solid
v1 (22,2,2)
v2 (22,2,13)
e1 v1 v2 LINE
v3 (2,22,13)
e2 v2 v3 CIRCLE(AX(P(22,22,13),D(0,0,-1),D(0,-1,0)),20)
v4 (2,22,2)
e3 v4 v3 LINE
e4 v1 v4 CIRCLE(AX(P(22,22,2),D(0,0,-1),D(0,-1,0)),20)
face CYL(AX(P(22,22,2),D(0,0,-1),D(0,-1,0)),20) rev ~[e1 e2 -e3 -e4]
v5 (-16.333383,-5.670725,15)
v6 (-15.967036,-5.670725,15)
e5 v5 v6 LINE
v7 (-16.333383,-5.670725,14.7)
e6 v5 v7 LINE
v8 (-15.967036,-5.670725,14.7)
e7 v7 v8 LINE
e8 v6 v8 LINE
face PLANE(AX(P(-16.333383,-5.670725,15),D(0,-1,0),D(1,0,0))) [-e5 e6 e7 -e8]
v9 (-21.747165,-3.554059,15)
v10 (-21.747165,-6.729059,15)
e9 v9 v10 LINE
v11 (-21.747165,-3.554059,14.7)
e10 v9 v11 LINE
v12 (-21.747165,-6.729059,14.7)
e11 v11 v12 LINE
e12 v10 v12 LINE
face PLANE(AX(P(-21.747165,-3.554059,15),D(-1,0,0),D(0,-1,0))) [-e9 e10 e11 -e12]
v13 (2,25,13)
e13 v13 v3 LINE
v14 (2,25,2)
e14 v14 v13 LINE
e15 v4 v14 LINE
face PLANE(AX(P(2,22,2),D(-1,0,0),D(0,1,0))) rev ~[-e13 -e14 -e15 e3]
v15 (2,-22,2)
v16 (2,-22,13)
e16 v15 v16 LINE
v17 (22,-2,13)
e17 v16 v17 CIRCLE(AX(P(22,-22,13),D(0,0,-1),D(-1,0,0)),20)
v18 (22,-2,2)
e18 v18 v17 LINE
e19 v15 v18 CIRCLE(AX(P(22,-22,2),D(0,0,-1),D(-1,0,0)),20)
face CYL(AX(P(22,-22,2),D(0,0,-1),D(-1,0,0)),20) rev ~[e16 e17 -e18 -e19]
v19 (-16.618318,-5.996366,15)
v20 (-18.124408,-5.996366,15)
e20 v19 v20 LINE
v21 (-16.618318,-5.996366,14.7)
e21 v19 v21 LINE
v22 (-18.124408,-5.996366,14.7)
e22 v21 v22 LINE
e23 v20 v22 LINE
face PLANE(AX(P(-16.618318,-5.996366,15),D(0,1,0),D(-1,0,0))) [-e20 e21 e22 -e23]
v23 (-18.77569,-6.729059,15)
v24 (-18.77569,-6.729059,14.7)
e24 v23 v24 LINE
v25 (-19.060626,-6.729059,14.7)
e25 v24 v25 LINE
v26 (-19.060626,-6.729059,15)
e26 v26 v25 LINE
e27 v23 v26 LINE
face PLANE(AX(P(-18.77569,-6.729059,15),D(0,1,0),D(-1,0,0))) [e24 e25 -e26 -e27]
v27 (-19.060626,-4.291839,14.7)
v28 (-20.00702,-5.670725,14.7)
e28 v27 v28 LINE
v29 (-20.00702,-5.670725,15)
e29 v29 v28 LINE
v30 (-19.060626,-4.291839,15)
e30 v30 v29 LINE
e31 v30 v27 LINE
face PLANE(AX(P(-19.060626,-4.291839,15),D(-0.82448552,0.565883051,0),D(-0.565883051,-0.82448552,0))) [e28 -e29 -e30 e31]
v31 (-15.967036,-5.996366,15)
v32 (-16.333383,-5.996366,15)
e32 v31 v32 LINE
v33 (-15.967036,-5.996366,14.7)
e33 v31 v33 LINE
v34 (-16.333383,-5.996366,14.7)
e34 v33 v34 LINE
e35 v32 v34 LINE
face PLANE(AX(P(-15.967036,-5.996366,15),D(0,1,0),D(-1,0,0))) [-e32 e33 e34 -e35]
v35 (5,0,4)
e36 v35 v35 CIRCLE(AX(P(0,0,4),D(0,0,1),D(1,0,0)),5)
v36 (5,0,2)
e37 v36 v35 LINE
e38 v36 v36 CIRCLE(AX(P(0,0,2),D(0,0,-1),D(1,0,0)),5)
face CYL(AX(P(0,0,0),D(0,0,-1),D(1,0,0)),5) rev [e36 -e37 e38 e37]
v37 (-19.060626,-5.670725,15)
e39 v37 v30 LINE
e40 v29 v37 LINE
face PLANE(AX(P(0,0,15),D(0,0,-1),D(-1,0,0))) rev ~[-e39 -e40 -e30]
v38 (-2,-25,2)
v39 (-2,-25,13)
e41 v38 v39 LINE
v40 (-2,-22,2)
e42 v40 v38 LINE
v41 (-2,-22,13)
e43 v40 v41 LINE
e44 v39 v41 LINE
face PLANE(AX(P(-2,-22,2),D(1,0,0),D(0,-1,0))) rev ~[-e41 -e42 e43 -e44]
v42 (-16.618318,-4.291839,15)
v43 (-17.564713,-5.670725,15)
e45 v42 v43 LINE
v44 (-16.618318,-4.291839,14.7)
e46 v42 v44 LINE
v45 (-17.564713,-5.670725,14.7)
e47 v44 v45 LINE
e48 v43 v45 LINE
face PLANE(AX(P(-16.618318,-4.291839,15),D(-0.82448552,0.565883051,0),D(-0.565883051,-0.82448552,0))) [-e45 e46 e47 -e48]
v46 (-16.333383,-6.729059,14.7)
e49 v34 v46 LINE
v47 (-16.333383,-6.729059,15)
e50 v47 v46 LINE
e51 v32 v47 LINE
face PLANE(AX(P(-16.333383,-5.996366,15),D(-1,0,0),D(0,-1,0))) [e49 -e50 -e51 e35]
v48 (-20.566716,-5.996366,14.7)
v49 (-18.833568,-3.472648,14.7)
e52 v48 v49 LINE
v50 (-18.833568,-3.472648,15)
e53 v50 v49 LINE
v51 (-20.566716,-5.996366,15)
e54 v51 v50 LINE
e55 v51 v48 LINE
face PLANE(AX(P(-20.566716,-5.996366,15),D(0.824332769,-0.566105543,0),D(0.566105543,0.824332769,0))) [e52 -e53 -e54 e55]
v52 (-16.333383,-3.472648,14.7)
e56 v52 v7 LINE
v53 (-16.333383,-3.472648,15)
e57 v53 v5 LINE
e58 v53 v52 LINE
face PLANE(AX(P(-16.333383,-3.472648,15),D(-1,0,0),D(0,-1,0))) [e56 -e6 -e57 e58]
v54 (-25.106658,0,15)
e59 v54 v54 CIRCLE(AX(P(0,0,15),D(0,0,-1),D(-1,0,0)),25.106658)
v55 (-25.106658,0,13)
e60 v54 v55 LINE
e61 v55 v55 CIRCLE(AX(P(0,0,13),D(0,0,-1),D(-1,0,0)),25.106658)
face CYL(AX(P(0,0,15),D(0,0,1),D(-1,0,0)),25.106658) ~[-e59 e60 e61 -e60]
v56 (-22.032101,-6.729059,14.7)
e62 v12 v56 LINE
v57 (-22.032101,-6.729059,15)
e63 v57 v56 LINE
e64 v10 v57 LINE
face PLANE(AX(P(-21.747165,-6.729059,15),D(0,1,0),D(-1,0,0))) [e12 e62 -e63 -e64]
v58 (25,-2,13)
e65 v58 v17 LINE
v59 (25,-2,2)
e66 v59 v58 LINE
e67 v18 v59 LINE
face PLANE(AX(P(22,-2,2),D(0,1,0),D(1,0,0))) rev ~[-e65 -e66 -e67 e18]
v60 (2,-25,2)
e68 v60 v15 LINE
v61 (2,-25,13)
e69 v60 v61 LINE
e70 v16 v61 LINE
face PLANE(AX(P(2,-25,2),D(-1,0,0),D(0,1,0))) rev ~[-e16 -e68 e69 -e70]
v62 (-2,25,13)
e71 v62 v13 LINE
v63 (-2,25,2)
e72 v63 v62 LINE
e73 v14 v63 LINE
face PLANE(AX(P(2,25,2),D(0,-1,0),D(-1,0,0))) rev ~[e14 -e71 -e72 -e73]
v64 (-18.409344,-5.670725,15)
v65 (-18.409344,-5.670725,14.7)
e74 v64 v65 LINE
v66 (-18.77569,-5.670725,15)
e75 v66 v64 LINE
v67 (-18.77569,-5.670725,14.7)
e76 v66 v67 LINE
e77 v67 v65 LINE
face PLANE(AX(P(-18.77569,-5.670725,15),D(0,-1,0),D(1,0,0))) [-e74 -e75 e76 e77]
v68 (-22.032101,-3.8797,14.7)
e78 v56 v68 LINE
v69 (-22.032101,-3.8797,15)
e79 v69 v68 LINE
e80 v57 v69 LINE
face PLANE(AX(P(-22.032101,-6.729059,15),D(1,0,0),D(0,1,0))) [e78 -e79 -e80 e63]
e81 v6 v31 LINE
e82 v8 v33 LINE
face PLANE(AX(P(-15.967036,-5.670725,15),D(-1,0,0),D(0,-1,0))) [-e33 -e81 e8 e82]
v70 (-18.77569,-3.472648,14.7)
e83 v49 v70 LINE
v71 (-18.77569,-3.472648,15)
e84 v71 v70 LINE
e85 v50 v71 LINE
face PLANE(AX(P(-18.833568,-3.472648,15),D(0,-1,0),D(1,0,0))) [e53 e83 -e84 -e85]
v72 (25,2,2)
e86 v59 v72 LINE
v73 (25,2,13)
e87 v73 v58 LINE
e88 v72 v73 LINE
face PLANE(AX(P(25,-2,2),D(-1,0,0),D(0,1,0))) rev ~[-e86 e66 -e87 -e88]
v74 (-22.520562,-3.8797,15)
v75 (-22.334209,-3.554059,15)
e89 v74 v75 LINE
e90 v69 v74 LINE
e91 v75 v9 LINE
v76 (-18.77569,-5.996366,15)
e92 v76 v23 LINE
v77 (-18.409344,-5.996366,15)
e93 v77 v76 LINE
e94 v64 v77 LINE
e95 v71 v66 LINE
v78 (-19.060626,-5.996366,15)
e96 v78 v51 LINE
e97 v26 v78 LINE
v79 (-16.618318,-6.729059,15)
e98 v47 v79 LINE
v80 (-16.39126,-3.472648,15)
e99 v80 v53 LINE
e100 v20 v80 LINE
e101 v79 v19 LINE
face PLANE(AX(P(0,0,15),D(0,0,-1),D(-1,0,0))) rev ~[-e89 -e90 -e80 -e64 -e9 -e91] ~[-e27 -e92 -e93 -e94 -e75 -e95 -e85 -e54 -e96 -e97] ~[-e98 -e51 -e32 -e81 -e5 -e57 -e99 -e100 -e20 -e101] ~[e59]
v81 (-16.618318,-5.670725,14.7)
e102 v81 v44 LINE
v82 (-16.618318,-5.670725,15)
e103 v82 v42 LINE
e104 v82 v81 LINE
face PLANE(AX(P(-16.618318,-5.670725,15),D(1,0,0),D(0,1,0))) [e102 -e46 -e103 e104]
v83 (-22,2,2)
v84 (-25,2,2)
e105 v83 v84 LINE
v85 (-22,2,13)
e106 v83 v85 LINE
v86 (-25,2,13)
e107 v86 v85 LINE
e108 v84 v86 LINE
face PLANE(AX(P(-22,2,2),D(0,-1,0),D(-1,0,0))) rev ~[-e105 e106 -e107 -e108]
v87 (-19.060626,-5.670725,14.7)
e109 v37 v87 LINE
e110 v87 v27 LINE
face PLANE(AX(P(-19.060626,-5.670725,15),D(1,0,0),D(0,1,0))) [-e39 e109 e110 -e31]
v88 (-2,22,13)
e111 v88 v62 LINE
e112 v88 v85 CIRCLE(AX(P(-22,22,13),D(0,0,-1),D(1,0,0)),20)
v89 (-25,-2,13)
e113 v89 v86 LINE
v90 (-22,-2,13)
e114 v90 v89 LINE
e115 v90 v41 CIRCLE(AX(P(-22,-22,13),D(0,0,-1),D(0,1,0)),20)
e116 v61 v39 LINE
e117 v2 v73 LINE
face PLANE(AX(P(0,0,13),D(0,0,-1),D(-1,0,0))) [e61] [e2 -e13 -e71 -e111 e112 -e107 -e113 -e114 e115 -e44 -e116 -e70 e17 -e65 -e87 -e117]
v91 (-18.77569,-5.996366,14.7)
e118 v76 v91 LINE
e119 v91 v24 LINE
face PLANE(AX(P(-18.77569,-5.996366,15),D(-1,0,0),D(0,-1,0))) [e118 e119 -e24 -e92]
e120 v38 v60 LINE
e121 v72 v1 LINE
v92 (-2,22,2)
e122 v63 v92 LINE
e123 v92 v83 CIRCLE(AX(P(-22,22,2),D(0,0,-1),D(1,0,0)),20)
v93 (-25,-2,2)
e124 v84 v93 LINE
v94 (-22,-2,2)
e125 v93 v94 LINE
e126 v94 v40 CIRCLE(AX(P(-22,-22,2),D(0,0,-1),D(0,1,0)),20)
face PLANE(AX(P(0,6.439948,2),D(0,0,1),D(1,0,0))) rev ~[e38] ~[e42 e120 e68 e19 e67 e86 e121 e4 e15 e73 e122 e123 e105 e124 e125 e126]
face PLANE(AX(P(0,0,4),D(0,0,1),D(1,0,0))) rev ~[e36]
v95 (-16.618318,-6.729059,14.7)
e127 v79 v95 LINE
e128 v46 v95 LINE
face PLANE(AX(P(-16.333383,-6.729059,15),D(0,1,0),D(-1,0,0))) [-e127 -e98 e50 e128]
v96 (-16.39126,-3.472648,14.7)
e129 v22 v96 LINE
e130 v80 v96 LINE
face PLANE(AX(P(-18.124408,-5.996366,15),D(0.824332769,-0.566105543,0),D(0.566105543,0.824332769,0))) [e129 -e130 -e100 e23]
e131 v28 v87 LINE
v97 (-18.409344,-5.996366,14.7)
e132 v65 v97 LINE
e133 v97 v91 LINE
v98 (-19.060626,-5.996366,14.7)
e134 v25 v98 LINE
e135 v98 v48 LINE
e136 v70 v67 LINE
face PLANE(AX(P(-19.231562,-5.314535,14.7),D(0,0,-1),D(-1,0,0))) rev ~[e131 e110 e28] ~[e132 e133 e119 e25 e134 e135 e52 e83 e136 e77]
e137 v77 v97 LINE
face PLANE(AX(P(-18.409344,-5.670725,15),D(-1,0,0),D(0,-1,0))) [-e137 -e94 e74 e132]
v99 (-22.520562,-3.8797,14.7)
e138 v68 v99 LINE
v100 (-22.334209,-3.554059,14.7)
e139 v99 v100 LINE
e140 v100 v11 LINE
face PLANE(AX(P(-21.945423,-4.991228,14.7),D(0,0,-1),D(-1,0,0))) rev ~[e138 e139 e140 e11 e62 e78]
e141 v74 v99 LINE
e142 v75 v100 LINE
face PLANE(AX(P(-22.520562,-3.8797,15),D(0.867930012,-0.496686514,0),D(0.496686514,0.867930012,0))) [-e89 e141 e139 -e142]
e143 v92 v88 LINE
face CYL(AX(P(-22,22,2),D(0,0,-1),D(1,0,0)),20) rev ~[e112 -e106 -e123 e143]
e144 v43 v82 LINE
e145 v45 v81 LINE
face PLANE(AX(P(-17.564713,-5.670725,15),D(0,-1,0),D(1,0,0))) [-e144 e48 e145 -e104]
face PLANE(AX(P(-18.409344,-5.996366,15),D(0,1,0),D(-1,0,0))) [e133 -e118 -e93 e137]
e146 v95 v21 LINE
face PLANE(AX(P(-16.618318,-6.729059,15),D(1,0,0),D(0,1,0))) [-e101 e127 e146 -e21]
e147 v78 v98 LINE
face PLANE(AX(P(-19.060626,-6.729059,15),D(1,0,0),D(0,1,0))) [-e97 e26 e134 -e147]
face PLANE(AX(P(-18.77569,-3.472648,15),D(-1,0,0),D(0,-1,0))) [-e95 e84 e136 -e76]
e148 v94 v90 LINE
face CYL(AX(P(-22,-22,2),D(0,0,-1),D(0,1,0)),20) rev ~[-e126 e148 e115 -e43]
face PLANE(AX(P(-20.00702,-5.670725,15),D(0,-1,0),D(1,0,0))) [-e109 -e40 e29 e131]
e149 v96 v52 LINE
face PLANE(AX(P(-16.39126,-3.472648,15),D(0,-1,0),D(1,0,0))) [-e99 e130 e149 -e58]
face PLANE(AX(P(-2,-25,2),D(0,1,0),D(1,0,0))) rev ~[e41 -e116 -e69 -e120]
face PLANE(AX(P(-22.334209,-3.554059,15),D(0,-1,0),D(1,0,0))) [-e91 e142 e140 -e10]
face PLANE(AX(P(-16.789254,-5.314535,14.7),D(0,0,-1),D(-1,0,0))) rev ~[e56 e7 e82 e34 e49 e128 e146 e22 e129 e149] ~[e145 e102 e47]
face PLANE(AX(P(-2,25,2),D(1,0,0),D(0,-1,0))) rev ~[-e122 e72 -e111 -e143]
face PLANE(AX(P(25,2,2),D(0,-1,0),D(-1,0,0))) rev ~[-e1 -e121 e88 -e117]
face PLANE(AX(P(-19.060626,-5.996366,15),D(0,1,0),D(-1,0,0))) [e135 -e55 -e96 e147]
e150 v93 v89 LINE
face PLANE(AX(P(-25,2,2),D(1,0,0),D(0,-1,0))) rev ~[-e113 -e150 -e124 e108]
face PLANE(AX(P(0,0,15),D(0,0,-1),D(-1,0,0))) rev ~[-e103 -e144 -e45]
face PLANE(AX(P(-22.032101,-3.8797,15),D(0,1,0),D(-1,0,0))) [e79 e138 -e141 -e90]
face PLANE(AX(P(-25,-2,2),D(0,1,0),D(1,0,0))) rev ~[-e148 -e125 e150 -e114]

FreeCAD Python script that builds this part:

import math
import FreeCAD as App
import Part
import Sketcher
from FreeCAD import Vector


def add_polygon(sketch, points):
    """Adds a closed chain of lines whose ends are joined by coincident constraints."""
    first, n = sketch.GeometryCount, len(points)
    for a, b in zip(points, points[1:] + points[:1]):
        sketch.addGeometry(Part.LineSegment(App.Vector(*a, 0), App.Vector(*b, 0)), False)
    for i in range(n):
        sketch.addConstraint(Sketcher.Constraint("Coincident", first + i, 2, first + (i + 1) % n, 1))

doc = App.newDocument("Part")
body = doc.addObject("PartDesign::Body", "Body")

sketch1 = doc.addObject("Sketcher::SketchObject", "Sketch")
body.addObject(sketch1)
sketch1.AttachmentSupport = (doc.XY_Plane, [""])
sketch1.MapMode = "FlatFace"
sketch1.AttachmentOffset = App.Placement(Vector(0, 0, 2), App.Rotation())
sketch1.addGeometry([
    Part.LineSegment(Vector(-25, 2, 0), Vector(-25, -2, 0)),
    Part.LineSegment(Vector(-25, -2, 0), Vector(-22, -2, 0)),
    Part.ArcOfCircle(Part.Circle(Vector(-22, -22, 0), Vector(0, 0, 1), 20), math.radians(0), math.radians(90)),
    Part.LineSegment(Vector(-2, -22, 0), Vector(-2, -25, 0)),
    Part.LineSegment(Vector(-2, -25, 0), Vector(2, -25, 0)),
    Part.LineSegment(Vector(2, -25, 0), Vector(2, -22, 0)),
    Part.ArcOfCircle(Part.Circle(Vector(22, -22, 0), Vector(0, 0, 1), 20), math.radians(90), math.radians(180)),
    Part.LineSegment(Vector(22, -2, 0), Vector(25, -2, 0)),
    Part.LineSegment(Vector(25, -2, 0), Vector(25, 2, 0)),
    Part.LineSegment(Vector(25, 2, 0), Vector(22, 2, 0)),
    Part.ArcOfCircle(Part.Circle(Vector(22, 22, 0), Vector(0, 0, 1), 20), math.radians(180), math.radians(270)),
    Part.LineSegment(Vector(2, 22, 0), Vector(2, 25, 0)),
    Part.LineSegment(Vector(2, 25, 0), Vector(-2, 25, 0)),
    Part.LineSegment(Vector(-2, 25, 0), Vector(-2, 22, 0)),
    Part.ArcOfCircle(Part.Circle(Vector(-22, 22, 0), Vector(0, 0, 1), 20), math.radians(-90), math.radians(0)),
    Part.LineSegment(Vector(-22, 2, 0), Vector(-25, 2, 0)),
], False)
sketch1.addConstraint([
    Sketcher.Constraint("Coincident", 0, 2, 1, 1),
    Sketcher.Constraint("Tangent", 1, 2, 2, 2),
    Sketcher.Constraint("Tangent", 2, 1, 3, 1),
    Sketcher.Constraint("Coincident", 3, 2, 4, 1),
    Sketcher.Constraint("Coincident", 4, 2, 5, 1),
    Sketcher.Constraint("Tangent", 5, 2, 6, 2),
    Sketcher.Constraint("Tangent", 6, 1, 7, 1),
    Sketcher.Constraint("Coincident", 7, 2, 8, 1),
    Sketcher.Constraint("Coincident", 8, 2, 9, 1),
    Sketcher.Constraint("Tangent", 9, 2, 10, 2),
    Sketcher.Constraint("Tangent", 10, 1, 11, 1),
    Sketcher.Constraint("Coincident", 11, 2, 12, 1),
    Sketcher.Constraint("Coincident", 12, 2, 13, 1),
    Sketcher.Constraint("Tangent", 13, 2, 14, 2),
    Sketcher.Constraint("Tangent", 14, 1, 15, 1),
    Sketcher.Constraint("Coincident", 15, 2, 0, 1),
    Sketcher.Constraint("Vertical", 0),
    Sketcher.Constraint("Horizontal", 1),
    Sketcher.Constraint("Vertical", 3),
    Sketcher.Constraint("Horizontal", 4),
    Sketcher.Constraint("Vertical", 5),
    Sketcher.Constraint("Horizontal", 7),
    Sketcher.Constraint("Vertical", 8),
    Sketcher.Constraint("Horizontal", 9),
    Sketcher.Constraint("Vertical", 11),
    Sketcher.Constraint("Horizontal", 12),
    Sketcher.Constraint("Vertical", 13),
    Sketcher.Constraint("Horizontal", 15),
    Sketcher.Constraint("Equal", 2, 6),
    Sketcher.Constraint("Equal", 6, 10),
    Sketcher.Constraint("Equal", 10, 14),
    Sketcher.Constraint("Symmetric", 2, 3, 10, 3, -1, 1),
    Sketcher.Constraint("Symmetric", 6, 3, 14, 3, -1, 1),
    Sketcher.Constraint("Symmetric", 2, 3, 6, 3, -2),
    Sketcher.Constraint("Equal", 1, 7),
    Sketcher.Constraint("Equal", 12, 0),
    Sketcher.Constraint("Equal", 15, 3),
    Sketcher.Constraint("Equal", 5, 11),
    Sketcher.Constraint("Radius", 2, 20.0),
    Sketcher.Constraint("DistanceX", 1, 1, 1, 2, 3.0),
    Sketcher.Constraint("DistanceX", 4, 1, 4, 2, 4.0),
])
pad1 = doc.addObject("PartDesign::Pad", "Pad")
body.addObject(pad1)
pad1.Profile = sketch1
pad1.Length = 13

sketch2 = doc.addObject("Sketcher::SketchObject", "Sketch001")
body.addObject(sketch2)
sketch2.AttachmentSupport = (doc.XY_Plane, [""])
sketch2.MapMode = "FlatFace"
sketch2.AttachmentOffset = App.Placement(Vector(0, 0, 15), App.Rotation())
sketch2.addGeometry(Part.Circle(Vector(0, 0, 0), Vector(0, 0, 1), 25.106658), False)
sketch2.addConstraint([
    Sketcher.Constraint("Coincident", 0, 3, -1, 1),
    Sketcher.Constraint("Diameter", 0, 50.213316),
])
pad2 = doc.addObject("PartDesign::Pad", "Pad001")
body.addObject(pad2)
pad2.Profile = sketch2
pad2.Length = 2
pad2.Reversed = True

sketch3 = doc.addObject("Sketcher::SketchObject", "Sketch002")
body.addObject(sketch3)
sketch3.AttachmentSupport = (doc.XY_Plane, [""])
sketch3.MapMode = "FlatFace"
sketch3.addGeometry(Part.Circle(Vector(0, 0, 0), Vector(0, 0, 1), 5), False)
sketch3.addConstraint([
    Sketcher.Constraint("Coincident", 0, 3, -1, 1),
    Sketcher.Constraint("Diameter", 0, 10.0),
])
pocket1 = doc.addObject("PartDesign::Pocket", "Pocket")
body.addObject(pocket1)
pocket1.Profile = sketch3
pocket1.Length = 4
pocket1.Reversed = True

sketch4 = doc.addObject("Sketcher::SketchObject", "Sketch003")
body.addObject(sketch4)
sketch4.AttachmentSupport = (doc.XY_Plane, [""])
sketch4.MapMode = "FlatFace"
sketch4.AttachmentOffset = App.Placement(Vector(0, 0, 15), App.Rotation())
add_polygon(sketch4, [(-21.747165, -3.554059), (-22.334209, -3.554059), (-22.520562, -3.8797), (-22.032101, -3.8797), (-22.032101, -6.729059), (-21.747165, -6.729059)])
add_polygon(sketch4, [(-18.77569, -3.472648), (-18.833568, -3.472648), (-20.566716, -5.996366), (-19.060626, -5.996366), (-19.060626, -6.729059), (-18.77569, -6.729059), (-18.77569, -5.996366), (-18.409344, -5.996366), (-18.409344, -5.670725), (-18.77569, -5.670725)])
add_polygon(sketch4, [(-19.060626, -5.670725), (-20.00702, -5.670725), (-19.060626, -4.291839)])
add_polygon(sketch4, [(-16.333383, -3.472648), (-16.39126, -3.472648), (-18.124408, -5.996366), (-16.618318, -5.996366), (-16.618318, -6.729059), (-16.333383, -6.729059), (-16.333383, -5.996366), (-15.967036, -5.996366), (-15.967036, -5.670725), (-16.333383, -5.670725)])
add_polygon(sketch4, [(-16.618318, -5.670725), (-17.564713, -5.670725), (-16.618318, -4.291839)])
sketch4.addConstraint([
    Sketcher.Constraint("Horizontal", 0),
    Sketcher.Constraint("Horizontal", 2),
    Sketcher.Constraint("Vertical", 3),
    Sketcher.Constraint("Horizontal", 4),
    Sketcher.Constraint("Vertical", 5),
    Sketcher.Constraint("Horizontal", 6),
    Sketcher.Constraint("Horizontal", 8),
    Sketcher.Constraint("Vertical", 9),
    Sketcher.Constraint("Horizontal", 10),
    Sketcher.Constraint("Vertical", 11),
    Sketcher.Constraint("Horizontal", 12),
    Sketcher.Constraint("Vertical", 13),
    Sketcher.Constraint("Horizontal", 14),
    Sketcher.Constraint("Vertical", 15),
    Sketcher.Constraint("Horizontal", 16),
    Sketcher.Constraint("Vertical", 18),
    Sketcher.Constraint("Horizontal", 19),
    Sketcher.Constraint("Horizontal", 21),
    Sketcher.Constraint("Vertical", 22),
    Sketcher.Constraint("Horizontal", 23),
    Sketcher.Constraint("Vertical", 24),
    Sketcher.Constraint("Horizontal", 25),
    Sketcher.Constraint("Vertical", 26),
    Sketcher.Constraint("Horizontal", 27),
    Sketcher.Constraint("Vertical", 28),
    Sketcher.Constraint("Horizontal", 29),
    Sketcher.Constraint("Vertical", 31),
    Sketcher.Constraint("Parallel", 7, 20),
    Sketcher.Constraint("Parallel", 17, 30),
    Sketcher.Constraint("Horizontal", 4, 2, 9, 2),
    Sketcher.Constraint("Horizontal", 8, 2, 11, 2),
    Sketcher.Constraint("Horizontal", 14, 2, 16, 2),
    Sketcher.Constraint("Horizontal", 15, 2, 19, 2),
    Sketcher.Constraint("Horizontal", 12, 2, 20, 2),
    Sketcher.Constraint("Horizontal", 10, 2, 22, 2),
    Sketcher.Constraint("Horizontal", 21, 2, 24, 2),
    Sketcher.Constraint("Horizontal", 18, 2, 26, 2),
    Sketcher.Constraint("Horizontal", 27, 2, 29, 2),
    Sketcher.Constraint("Horizontal", 17, 2, 30, 2),
    Sketcher.Constraint("Vertical", 11, 2, 14, 2),
    Sketcher.Constraint("Vertical", 9, 2, 17, 2),
    Sketcher.Constraint("Vertical", 24, 2, 27, 2),
    Sketcher.Constraint("Vertical", 22, 2, 30, 2),
    Sketcher.Constraint("Equal", 4, 10),
    Sketcher.Constraint("Equal", 6, 19),
    Sketcher.Constraint("Equal", 8, 21),
    Sketcher.Constraint("Equal", 14, 25),
    Sketcher.Constraint("DistanceY", 5, 1, 5, 2, 3.175),
    Sketcher.Constraint("DistanceX", 2, 1, 2, 2, 0.488462),
    Sketcher.Constraint("DistanceX", 8, 1, 8, 2, 1.50609),
    Sketcher.Constraint("DistanceY", 3, 2, 3, 1, 2.849359),
    Sketcher.Constraint("DistanceY", 13, 1, 13, 2, 0.325641),
    Sketcher.Constraint("DistanceY", 1, 2, -1, 1, 3.8797),
    Sketcher.Constraint("DistanceX", 2, 2, -1, 1, 22.032101),
    Sketcher.Constraint("Distance", 7, 3.061528),
    Sketcher.Constraint("Distance", 17, 1.67242),
    Sketcher.Constraint("DistanceX", 0, 2, 0, 1, 0.587044),
    Sketcher.Constraint("DistanceX", 4, 1, 4, 2, 0.284936),
    Sketcher.Constraint("DistanceX", 6, 2, 6, 1, 0.057878),
    Sketcher.Constraint("DistanceX", 12, 1, 12, 2, 0.366346),
    Sketcher.Constraint("DistanceX", 16, 2, 16, 1, 0.946394),
    Sketcher.Constraint("DistanceY", 9, 2, 9, 1, 0.732692),
    Sketcher.Constraint("DistanceX", 10, 2, -1, 1, 18.77569),
    Sketcher.Constraint("DistanceX", 19, 2, -1, 1, 16.39126),
])
pocket2 = doc.addObject("PartDesign::Pocket", "Pocket001")
body.addObject(pocket2)
pocket2.Profile = sketch4
pocket2.Length = 0.3

doc.recompute()
